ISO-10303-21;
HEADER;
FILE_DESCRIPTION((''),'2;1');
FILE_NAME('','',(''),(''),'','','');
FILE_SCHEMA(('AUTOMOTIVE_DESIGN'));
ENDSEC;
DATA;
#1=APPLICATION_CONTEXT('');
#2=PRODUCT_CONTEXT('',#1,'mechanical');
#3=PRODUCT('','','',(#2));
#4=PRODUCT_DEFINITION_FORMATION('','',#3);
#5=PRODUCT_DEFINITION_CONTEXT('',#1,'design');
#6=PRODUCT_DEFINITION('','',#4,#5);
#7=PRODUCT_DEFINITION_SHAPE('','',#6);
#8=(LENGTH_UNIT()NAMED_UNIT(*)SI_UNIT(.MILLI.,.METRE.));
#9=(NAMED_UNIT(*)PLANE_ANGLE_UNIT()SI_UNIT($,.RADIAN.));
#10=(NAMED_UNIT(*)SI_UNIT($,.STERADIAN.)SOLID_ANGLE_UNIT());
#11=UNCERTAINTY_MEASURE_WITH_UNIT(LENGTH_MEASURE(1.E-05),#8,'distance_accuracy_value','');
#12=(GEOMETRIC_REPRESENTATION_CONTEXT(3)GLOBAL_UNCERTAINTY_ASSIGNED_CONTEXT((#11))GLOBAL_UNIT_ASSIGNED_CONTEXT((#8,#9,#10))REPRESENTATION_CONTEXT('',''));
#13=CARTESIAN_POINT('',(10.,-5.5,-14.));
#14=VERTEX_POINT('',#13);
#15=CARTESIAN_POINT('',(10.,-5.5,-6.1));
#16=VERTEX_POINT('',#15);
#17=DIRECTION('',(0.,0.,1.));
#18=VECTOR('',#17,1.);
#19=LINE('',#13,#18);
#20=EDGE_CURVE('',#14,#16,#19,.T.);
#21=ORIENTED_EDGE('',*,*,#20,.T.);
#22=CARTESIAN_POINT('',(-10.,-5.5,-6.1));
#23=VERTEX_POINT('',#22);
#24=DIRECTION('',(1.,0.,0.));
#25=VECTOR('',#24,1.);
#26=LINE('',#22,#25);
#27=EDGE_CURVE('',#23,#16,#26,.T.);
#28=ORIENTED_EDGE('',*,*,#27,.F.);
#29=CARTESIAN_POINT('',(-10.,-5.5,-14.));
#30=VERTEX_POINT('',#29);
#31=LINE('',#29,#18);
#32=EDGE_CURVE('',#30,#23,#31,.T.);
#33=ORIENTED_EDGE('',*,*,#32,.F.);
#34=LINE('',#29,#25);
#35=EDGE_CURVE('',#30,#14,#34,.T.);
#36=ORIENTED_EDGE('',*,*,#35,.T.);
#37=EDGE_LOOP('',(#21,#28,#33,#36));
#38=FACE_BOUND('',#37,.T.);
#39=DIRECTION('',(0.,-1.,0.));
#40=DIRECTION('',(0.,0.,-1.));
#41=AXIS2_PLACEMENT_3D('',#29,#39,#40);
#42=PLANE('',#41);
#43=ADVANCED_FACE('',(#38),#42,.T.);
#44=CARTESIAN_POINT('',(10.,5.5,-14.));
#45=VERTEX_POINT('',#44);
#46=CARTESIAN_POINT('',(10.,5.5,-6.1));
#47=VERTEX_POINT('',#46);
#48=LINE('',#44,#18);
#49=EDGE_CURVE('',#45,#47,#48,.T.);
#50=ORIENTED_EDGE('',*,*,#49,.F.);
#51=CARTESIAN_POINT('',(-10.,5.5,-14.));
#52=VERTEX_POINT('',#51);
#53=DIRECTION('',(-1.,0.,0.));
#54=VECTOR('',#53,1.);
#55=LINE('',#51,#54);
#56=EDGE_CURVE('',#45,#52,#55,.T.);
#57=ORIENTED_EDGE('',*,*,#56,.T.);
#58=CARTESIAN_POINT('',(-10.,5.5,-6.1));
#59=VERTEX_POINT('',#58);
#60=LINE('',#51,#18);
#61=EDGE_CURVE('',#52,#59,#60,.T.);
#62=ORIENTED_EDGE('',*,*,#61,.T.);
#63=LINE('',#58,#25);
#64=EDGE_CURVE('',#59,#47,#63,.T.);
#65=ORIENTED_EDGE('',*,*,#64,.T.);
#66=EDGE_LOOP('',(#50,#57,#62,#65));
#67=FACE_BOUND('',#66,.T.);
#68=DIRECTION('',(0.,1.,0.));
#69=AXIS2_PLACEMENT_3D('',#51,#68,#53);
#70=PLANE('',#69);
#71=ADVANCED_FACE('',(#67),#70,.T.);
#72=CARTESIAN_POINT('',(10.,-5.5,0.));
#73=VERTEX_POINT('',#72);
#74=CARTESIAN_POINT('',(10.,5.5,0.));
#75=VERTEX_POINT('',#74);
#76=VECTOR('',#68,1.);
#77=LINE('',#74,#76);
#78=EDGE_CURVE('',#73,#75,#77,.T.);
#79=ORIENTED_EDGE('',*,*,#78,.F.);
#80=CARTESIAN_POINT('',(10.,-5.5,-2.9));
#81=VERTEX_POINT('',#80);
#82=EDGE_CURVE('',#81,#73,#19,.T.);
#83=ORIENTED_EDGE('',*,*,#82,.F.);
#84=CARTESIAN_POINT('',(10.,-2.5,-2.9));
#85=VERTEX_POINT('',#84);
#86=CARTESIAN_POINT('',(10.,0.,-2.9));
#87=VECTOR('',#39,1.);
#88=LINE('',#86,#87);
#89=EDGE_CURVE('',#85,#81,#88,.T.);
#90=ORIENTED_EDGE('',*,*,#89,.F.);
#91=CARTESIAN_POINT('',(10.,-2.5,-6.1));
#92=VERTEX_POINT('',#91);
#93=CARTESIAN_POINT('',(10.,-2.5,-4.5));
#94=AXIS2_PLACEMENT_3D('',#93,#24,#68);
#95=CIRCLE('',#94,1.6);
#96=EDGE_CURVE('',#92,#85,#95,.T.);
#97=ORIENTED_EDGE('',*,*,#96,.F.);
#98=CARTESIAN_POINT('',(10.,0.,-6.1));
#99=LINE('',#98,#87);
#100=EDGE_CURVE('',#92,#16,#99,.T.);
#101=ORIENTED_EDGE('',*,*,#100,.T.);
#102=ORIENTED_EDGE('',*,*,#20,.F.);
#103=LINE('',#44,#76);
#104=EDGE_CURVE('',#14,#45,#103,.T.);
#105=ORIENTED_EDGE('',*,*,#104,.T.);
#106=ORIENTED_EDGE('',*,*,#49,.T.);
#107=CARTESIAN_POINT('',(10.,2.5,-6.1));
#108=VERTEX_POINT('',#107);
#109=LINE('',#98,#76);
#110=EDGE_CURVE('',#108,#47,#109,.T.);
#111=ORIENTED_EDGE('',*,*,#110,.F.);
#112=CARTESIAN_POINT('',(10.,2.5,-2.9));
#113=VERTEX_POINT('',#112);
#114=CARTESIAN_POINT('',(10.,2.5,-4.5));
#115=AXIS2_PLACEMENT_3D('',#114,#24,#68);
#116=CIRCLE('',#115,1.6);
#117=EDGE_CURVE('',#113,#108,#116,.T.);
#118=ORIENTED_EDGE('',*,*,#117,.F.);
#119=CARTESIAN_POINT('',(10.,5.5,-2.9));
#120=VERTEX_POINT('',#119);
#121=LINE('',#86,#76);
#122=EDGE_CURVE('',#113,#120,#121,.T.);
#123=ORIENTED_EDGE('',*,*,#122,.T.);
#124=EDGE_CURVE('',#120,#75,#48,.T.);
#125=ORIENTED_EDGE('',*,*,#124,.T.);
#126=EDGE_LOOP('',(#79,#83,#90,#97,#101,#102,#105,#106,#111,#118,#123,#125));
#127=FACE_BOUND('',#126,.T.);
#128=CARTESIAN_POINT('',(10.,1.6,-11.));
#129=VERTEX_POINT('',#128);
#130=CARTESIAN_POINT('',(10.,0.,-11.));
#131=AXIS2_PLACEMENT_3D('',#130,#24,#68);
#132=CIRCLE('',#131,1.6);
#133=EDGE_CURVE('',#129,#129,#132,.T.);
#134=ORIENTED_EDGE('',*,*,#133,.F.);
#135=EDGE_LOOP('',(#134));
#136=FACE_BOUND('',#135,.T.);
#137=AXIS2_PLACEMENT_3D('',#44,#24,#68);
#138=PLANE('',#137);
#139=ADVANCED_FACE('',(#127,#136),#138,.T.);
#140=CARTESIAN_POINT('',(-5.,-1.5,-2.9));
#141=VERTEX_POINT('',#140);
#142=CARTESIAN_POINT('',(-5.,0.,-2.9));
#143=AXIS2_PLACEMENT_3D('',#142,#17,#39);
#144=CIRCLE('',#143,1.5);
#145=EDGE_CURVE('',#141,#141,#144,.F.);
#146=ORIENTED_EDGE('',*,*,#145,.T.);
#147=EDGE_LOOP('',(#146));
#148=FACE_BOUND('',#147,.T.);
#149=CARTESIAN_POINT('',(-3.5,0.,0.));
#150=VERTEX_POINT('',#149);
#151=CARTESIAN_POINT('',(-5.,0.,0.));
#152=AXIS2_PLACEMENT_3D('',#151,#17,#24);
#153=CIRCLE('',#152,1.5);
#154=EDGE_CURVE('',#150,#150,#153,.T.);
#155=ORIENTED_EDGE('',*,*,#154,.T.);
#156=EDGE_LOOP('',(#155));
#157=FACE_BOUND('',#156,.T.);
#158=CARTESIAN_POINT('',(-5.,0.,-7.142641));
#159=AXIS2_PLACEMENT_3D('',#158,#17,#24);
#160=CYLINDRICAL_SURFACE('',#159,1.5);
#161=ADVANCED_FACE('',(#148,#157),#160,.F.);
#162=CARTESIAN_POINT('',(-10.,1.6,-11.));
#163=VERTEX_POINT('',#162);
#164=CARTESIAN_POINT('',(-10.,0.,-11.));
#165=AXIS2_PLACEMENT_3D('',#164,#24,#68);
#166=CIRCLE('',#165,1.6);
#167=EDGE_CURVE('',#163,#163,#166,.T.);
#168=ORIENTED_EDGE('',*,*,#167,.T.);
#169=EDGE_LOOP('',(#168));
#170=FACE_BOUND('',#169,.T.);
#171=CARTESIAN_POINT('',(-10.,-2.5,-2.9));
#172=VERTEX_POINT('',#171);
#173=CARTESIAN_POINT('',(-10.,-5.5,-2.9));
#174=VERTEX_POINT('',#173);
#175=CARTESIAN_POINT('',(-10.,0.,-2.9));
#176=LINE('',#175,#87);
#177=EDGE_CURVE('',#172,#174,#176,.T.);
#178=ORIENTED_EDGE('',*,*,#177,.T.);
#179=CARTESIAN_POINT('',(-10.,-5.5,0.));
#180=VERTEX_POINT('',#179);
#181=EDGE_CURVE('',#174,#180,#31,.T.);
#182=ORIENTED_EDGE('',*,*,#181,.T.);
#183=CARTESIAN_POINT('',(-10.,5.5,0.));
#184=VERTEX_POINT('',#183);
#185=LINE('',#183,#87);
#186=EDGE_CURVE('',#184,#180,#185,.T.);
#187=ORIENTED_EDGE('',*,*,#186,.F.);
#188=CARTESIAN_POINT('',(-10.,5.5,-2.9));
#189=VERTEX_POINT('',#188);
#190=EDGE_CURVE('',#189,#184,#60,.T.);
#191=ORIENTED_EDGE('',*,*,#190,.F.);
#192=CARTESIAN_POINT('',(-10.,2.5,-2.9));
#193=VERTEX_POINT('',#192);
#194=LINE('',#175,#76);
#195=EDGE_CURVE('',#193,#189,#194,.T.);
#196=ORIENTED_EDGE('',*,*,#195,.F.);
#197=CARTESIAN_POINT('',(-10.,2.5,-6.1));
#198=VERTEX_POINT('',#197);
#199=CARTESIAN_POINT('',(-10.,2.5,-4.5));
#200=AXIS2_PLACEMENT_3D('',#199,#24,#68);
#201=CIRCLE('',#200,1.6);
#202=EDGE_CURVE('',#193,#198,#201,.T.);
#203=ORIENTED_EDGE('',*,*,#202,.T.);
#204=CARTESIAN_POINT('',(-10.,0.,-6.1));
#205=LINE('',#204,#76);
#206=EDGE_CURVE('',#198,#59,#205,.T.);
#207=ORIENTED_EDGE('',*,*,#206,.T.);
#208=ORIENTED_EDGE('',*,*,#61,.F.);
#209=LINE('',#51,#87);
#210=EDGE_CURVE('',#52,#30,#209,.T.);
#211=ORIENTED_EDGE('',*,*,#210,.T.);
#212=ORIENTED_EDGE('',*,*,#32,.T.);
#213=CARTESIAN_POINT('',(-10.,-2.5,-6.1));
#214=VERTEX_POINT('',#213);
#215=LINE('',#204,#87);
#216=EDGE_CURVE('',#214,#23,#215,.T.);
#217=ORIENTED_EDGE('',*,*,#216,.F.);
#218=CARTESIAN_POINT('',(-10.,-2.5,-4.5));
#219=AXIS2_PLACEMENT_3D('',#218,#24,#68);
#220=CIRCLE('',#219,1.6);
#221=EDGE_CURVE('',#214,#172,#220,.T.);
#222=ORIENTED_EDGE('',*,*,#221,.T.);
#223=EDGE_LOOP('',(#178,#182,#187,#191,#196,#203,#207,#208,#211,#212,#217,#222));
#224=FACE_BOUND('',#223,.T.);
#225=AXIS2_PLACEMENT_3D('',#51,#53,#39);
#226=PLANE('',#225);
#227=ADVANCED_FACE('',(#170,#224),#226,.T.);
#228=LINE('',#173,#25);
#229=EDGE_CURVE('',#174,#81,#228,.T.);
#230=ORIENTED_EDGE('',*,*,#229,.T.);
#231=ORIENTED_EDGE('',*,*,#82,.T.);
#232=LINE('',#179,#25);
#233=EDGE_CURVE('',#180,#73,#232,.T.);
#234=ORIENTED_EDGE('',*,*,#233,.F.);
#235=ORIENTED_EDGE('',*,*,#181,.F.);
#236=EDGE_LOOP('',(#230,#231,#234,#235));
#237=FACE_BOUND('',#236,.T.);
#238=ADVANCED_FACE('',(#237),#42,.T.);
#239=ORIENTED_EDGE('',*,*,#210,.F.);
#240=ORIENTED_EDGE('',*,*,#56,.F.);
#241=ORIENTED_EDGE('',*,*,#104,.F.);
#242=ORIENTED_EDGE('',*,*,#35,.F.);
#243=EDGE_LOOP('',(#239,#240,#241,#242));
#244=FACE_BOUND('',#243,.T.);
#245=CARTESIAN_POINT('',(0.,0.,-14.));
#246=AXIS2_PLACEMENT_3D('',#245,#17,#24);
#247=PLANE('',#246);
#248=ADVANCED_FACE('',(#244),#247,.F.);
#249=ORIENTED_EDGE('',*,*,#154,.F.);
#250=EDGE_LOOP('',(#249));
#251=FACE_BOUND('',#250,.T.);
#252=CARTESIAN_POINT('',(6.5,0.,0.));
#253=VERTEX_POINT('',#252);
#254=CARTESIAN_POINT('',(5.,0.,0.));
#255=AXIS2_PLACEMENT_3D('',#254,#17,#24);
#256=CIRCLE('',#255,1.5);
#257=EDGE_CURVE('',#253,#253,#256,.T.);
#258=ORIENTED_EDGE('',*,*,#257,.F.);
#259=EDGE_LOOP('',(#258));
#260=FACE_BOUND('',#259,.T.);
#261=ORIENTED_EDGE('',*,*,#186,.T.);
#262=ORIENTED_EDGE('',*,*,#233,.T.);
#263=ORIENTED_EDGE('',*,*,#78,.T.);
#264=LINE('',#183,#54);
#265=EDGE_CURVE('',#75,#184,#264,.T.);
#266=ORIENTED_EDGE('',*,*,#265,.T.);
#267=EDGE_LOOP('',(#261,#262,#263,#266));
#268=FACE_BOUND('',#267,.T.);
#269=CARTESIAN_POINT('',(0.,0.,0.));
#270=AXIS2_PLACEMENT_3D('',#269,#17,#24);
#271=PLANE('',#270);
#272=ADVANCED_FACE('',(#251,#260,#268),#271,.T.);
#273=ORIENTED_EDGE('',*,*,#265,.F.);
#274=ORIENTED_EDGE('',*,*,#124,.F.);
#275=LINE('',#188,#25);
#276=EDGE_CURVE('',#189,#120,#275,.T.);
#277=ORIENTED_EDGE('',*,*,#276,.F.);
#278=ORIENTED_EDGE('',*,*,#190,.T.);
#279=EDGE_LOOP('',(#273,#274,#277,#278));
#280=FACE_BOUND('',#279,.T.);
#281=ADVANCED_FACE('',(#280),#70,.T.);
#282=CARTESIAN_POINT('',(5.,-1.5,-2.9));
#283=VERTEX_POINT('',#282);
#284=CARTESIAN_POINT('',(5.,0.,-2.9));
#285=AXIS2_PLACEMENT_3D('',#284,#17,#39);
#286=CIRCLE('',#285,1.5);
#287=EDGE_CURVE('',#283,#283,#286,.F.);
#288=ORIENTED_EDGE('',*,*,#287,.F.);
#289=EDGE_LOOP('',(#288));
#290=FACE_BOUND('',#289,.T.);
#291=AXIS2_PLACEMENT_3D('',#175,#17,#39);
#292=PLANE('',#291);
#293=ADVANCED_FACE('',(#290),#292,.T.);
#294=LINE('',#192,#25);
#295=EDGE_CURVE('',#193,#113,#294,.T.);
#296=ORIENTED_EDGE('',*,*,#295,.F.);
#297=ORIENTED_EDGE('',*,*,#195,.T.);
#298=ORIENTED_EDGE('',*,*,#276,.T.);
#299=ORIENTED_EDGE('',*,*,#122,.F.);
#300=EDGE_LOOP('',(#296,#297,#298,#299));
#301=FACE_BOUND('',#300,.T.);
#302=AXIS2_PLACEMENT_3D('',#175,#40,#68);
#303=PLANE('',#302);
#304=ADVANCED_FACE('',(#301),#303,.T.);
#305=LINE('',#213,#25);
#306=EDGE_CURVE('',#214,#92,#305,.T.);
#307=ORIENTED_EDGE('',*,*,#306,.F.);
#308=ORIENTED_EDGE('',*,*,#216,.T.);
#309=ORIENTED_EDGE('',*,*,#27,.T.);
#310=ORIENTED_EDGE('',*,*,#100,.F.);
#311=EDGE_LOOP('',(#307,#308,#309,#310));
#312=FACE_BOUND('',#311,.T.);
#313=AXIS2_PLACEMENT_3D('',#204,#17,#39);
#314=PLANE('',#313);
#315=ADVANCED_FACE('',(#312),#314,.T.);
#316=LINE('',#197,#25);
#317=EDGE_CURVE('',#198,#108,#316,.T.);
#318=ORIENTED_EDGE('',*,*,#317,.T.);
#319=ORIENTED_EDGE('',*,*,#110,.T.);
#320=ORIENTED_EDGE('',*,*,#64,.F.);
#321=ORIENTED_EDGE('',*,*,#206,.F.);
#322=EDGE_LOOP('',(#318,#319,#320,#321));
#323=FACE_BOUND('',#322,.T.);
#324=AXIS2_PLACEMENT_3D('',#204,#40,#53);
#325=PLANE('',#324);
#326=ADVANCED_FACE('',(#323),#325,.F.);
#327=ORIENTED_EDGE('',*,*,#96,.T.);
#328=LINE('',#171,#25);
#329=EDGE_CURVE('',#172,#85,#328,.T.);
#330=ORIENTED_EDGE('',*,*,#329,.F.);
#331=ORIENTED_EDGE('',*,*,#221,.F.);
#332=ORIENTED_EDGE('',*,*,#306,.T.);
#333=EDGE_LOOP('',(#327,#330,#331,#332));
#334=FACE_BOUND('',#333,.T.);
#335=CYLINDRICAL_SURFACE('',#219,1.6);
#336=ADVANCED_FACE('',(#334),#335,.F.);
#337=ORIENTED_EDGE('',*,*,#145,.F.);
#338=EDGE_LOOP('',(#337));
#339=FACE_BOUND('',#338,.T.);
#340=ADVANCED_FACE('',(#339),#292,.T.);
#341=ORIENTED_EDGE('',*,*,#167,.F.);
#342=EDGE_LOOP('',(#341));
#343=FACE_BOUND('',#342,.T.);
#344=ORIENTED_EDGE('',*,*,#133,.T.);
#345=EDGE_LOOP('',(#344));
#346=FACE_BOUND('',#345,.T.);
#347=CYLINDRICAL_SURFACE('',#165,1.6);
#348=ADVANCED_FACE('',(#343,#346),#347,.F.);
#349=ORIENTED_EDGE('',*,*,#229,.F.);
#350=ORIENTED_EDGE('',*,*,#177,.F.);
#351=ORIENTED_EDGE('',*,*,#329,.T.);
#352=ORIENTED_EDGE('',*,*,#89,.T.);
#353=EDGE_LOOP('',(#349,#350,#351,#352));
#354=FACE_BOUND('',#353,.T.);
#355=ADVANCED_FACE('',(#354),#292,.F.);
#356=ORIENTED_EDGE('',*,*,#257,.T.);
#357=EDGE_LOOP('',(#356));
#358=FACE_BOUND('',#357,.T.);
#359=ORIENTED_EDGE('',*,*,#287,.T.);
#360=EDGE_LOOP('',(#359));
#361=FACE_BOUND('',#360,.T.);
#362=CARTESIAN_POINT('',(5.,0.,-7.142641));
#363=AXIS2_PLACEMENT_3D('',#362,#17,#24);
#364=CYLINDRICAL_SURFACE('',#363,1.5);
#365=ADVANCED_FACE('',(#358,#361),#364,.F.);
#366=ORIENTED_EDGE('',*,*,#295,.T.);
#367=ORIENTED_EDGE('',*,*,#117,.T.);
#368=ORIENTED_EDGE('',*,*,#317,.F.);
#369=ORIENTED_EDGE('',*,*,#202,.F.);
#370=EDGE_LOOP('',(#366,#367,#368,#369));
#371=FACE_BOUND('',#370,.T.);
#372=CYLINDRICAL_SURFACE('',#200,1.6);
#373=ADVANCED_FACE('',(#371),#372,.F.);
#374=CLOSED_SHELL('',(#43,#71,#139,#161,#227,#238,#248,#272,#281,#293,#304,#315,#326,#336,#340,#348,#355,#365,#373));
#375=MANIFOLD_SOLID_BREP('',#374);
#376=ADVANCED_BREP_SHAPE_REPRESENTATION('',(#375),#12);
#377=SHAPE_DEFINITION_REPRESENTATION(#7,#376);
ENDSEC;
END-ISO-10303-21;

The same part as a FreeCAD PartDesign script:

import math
import FreeCAD as App
import Part
import Sketcher
from FreeCAD import Vector


def add_polygon(sketch, points):
    """Adds a closed chain of lines whose ends are joined by coincident constraints."""
    first, n = sketch.GeometryCount, len(points)
    for a, b in zip(points, points[1:] + points[:1]):
        sketch.addGeometry(Part.LineSegment(App.Vector(*a, 0), App.Vector(*b, 0)), False)
    for i in range(n):
        sketch.addConstraint(Sketcher.Constraint("Coincident", first + i, 2, first + (i + 1) % n, 1))

doc = App.newDocument("Part")
body = doc.addObject("PartDesign::Body", "Body")

# Sketch on XY plane
sketch1 = body.newObject("Sketcher::SketchObject", "Sketch")
sketch1.AttachmentSupport = (doc.getObject("XY_Plane"), [""])
sketch1.MapMode = "FlatFace"
add_polygon(sketch1, [(-10, 6), (-10, -6), (10, -6), (10, 6)])  # lines 0-3
sketch1.addConstraint(Sketcher.Constraint("Vertical", 0))
sketch1.addConstraint(Sketcher.Constraint("Horizontal", 1))
sketch1.addConstraint(Sketcher.Constraint("Vertical", 2))
sketch1.addConstraint(Sketcher.Constraint("Horizontal", 3))
sketch1.addConstraint(Sketcher.Constraint("Symmetric", 0, 2, 2, 2, -1, 1))
sketch1.addConstraint(Sketcher.Constraint("DistanceX", 1, 1, 1, 2, 20.0))
sketch1.addConstraint(Sketcher.Constraint("DistanceY", 0, 2, 0, 1, 11.0))
pad1 = body.newObject("PartDesign::Pad", "Pad")
pad1.Profile = sketch1
pad1.Length = 14
pad1.Reversed = True

# Sketch on YZ plane
sketch2 = body.newObject("Sketcher::SketchObject", "Sketch001")
sketch2.AttachmentSupport = (doc.getObject("YZ_Plane"), [""])
sketch2.MapMode = "FlatFace"
sketch2.AttachmentOffset = App.Placement(Vector(0, 0, 10), App.Rotation())
sketch2.addGeometry(Part.ArcOfCircle(Part.Circle(Vector(-2.5, -4.5, 0), Vector(0, 0, 1), 1.6), math.radians(-90), math.radians(90)), False)
sketch2.addGeometry(Part.LineSegment(Vector(-2.5, -2.9, 0), Vector(-5.5, -2.9, 0)), False)
sketch2.addGeometry(Part.LineSegment(Vector(-5.5, -2.9, 0), Vector(-5.5, -6.1, 0)), False)
sketch2.addGeometry(Part.LineSegment(Vector(-5.5, -6.1, 0), Vector(-2.5, -6.1, 0)), False)
sketch2.addGeometry(Part.LineSegment(Vector(5.5, -2.9, 0), Vector(2.5, -2.9, 0)), False)
sketch2.addGeometry(Part.ArcOfCircle(Part.Circle(Vector(2.5, -4.5, 0), Vector(0, 0, 1), 1.6), math.radians(90), math.radians(270)), False)
sketch2.addGeometry(Part.LineSegment(Vector(2.5, -6.1, 0), Vector(5.5, -6.1, 0)), False)
sketch2.addGeometry(Part.LineSegment(Vector(5.5, -6.1, 0), Vector(5.5, -2.9, 0)), False)
sketch2.addGeometry(Part.Circle(Vector(0, -11, 0), Vector(0, 0, 1), 1.6), False)
sketch2.addConstraint(Sketcher.Constraint("Tangent", 0, 2, 1, 1))
sketch2.addConstraint(Sketcher.Constraint("Coincident", 1, 2, 2, 1))
sketch2.addConstraint(Sketcher.Constraint("Coincident", 2, 2, 3, 1))
sketch2.addConstraint(Sketcher.Constraint("Tangent", 3, 2, 0, 1))
sketch2.addConstraint(Sketcher.Constraint("Tangent", 4, 2, 5, 1))
sketch2.addConstraint(Sketcher.Constraint("Tangent", 5, 2, 6, 1))
sketch2.addConstraint(Sketcher.Constraint("Coincident", 6, 2, 7, 1))
sketch2.addConstraint(Sketcher.Constraint("Coincident", 7, 2, 4, 1))
sketch2.addConstraint(Sketcher.Constraint("Horizontal", 1))
sketch2.addConstraint(Sketcher.Constraint("Vertical", 2))
sketch2.addConstraint(Sketcher.Constraint("Horizontal", 3))
sketch2.addConstraint(Sketcher.Constraint("Horizontal", 4))
sketch2.addConstraint(Sketcher.Constraint("Horizontal", 6))
sketch2.addConstraint(Sketcher.Constraint("Vertical", 7))
sketch2.addConstraint(Sketcher.Constraint("Equal", 0, 5))
sketch2.addConstraint(Sketcher.Constraint("Equal", 5, 8))
sketch2.addConstraint(Sketcher.Constraint("Symmetric", 0, 3, 5, 3, -2))
sketch2.addConstraint(Sketcher.Constraint("PointOnObject", 8, 3, -2))
sketch2.addConstraint(Sketcher.Constraint("Equal", 3, 4))
sketch2.addConstraint(Sketcher.Constraint("Diameter", 8, 3.2))
sketch2.addConstraint(Sketcher.Constraint("DistanceX", 1, 2, 1, 1, 3.0))
sketch2.addConstraint(Sketcher.Constraint("DistanceY", 8, 3, -1, 1, 11.0))
sketch2.addConstraint(Sketcher.Constraint("DistanceX", 0, 3, 5, 3, 5.0))
sketch2.addConstraint(Sketcher.Constraint("DistanceY", 0, 3, -1, 1, 4.5))
pocket1 = body.newObject("PartDesign::Pocket", "Pocket")
pocket1.Profile = sketch2
pocket1.Type = "ThroughAll"

# Sketch on XY plane
sketch3 = body.newObject("Sketcher::SketchObject", "Sketch002")
sketch3.AttachmentSupport = (doc.getObject("XY_Plane"), [""])
sketch3.MapMode = "FlatFace"
sketch3.addGeometry(Part.Circle(Vector(-5, 0, 0), Vector(0, 0, 1), 1.5), False)
sketch3.addGeometry(Part.Circle(Vector(5, 0, 0), Vector(0, 0, 1), 1.5), False)
sketch3.addConstraint(Sketcher.Constraint("Equal", 0, 1))
sketch3.addConstraint(Sketcher.Constraint("Symmetric", 0, 3, 1, 3, -1, 1))
sketch3.addConstraint(Sketcher.Constraint("PointOnObject", 0, 3, -1))
sketch3.addConstraint(Sketcher.Constraint("Diameter", 0, 3.0))
sketch3.addConstraint(Sketcher.Constraint("DistanceX", 0, 3, -1, 1, 5.0))
pocket2 = body.newObject("PartDesign::Pocket", "Pocket001")
pocket2.Profile = sketch3
pocket2.Length = 2.9

doc.recompute()
